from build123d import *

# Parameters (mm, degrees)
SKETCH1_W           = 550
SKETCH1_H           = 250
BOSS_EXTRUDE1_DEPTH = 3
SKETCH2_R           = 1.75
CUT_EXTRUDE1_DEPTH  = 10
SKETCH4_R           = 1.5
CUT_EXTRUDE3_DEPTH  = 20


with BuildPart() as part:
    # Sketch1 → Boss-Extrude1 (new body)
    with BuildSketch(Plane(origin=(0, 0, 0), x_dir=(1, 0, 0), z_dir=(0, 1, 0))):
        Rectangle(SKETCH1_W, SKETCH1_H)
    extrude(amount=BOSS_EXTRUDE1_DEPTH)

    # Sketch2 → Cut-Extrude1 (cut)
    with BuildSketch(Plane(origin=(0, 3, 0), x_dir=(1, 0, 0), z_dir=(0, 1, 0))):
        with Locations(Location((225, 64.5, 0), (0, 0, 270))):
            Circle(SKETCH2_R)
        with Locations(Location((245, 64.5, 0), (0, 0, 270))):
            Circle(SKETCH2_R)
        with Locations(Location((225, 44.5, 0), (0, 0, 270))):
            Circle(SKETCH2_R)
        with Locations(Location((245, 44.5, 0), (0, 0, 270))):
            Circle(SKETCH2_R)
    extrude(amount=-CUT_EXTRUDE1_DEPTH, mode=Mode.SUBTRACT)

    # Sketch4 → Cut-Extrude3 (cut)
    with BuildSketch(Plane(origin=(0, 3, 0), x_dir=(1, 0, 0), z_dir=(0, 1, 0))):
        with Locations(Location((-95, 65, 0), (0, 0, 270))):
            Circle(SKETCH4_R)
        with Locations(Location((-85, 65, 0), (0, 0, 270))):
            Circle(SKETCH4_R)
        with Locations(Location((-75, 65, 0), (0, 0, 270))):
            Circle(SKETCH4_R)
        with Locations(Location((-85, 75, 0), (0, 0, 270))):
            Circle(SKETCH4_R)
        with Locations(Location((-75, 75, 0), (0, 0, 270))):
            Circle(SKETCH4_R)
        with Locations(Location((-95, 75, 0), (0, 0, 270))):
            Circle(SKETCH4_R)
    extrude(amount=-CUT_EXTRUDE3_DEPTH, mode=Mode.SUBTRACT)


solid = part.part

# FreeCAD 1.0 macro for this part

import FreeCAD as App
import Part
import Sketcher

V = App.Vector

doc = App.newDocument("Part")
body = doc.addObject("PartDesign::Body", "Body")

# Sketch on XZ plane
sketch1 = doc.addObject("Sketcher::SketchObject", "Sketch")
body.addObject(sketch1)
sketch1.AttachmentSupport = (doc.XZ_Plane, [""])
sketch1.MapMode = "FlatFace"
sketch1.addGeometry(Part.LineSegment(V(-275, -125, 0), V(-275, 125, 0)), False)
sketch1.addGeometry(Part.LineSegment(V(-275, 125, 0), V(275, 125, 0)), False)
sketch1.addGeometry(Part.LineSegment(V(275, 125, 0), V(275, -125, 0)), False)
sketch1.addGeometry(Part.LineSegment(V(275, -125, 0), V(-275, -125, 0)), False)
sketch1.addConstraint(Sketcher.Constraint("Coincident", 0, 2, 1, 1))
sketch1.addConstraint(Sketcher.Constraint("Coincident", 1, 2, 2, 1))
sketch1.addConstraint(Sketcher.Constraint("Coincident", 2, 2, 3, 1))
sketch1.addConstraint(Sketcher.Constraint("Coincident", 3, 2, 0, 1))
sketch1.addConstraint(Sketcher.Constraint("Vertical", 0))
sketch1.addConstraint(Sketcher.Constraint("Horizontal", 1))
sketch1.addConstraint(Sketcher.Constraint("Vertical", 2))
sketch1.addConstraint(Sketcher.Constraint("Horizontal", 3))
sketch1.addConstraint(Sketcher.Constraint("Symmetric", 0, 2, 2, 2, -1, 1))
sketch1.addConstraint(Sketcher.Constraint("DistanceX", 1, 1, 1, 2, 550.0))
sketch1.addConstraint(Sketcher.Constraint("DistanceY", 0, 1, 0, 2, 250.0))
pad1 = doc.addObject("PartDesign::Pad", "Pad")
body.addObject(pad1)
pad1.Profile = sketch1
pad1.Length = 3
pad1.Reversed = True

# Sketch on XZ plane
sketch2 = doc.addObject("Sketcher::SketchObject", "Sketch001")
body.addObject(sketch2)
sketch2.AttachmentSupport = (doc.XZ_Plane, [""])
sketch2.MapMode = "FlatFace"
sketch2.AttachmentOffset = App.Placement(V(0, 0, -3), App.Rotation())
sketch2.addGeometry(Part.Circle(V(225, -64.5, 0), V(0, 0, 1), 1.8), False)
sketch2.addGeometry(Part.Circle(V(245, -64.5, 0), V(0, 0, 1), 1.8), False)
sketch2.addGeometry(Part.Circle(V(225, -44.5, 0), V(0, 0, 1), 1.8), False)
sketch2.addGeometry(Part.Circle(V(245, -44.5, 0), V(0, 0, 1), 1.8), False)
sketch2.addConstraint(Sketcher.Constraint("Equal", 0, 1))
sketch2.addConstraint(Sketcher.Constraint("Equal", 1, 2))
sketch2.addConstraint(Sketcher.Constraint("Equal", 2, 3))
sketch2.addConstraint(Sketcher.Constraint("Horizontal", 0, 3, 1, 3))
sketch2.addConstraint(Sketcher.Constraint("Horizontal", 2, 3, 3, 3))
sketch2.addConstraint(Sketcher.Constraint("Vertical", 0, 3, 2, 3))
sketch2.addConstraint(Sketcher.Constraint("Vertical", 1, 3, 3, 3))
sketch2.addConstraint(Sketcher.Constraint("Diameter", 0, 3.5))
sketch2.addConstraint(Sketcher.Constraint("DistanceX", -1, 1, 0, 3, 225.0))
sketch2.addConstraint(Sketcher.Constraint("DistanceX", -1, 1, 1, 3, 245.0))
sketch2.addConstraint(Sketcher.Constraint("DistanceY", 0, 3, 2, 3, 20.0))
sketch2.addConstraint(Sketcher.Constraint("DistanceY", 0, 3, -1, 1, 64.5))
pocket1 = doc.addObject("PartDesign::Pocket", "Pocket")
body.addObject(pocket1)
pocket1.Profile = sketch2
pocket1.Length = 10
pocket1.Reversed = True

# Sketch on XZ plane
sketch3 = doc.addObject("Sketcher::SketchObject", "Sketch002")
body.addObject(sketch3)
sketch3.AttachmentSupport = (doc.XZ_Plane, [""])
sketch3.MapMode = "FlatFace"
sketch3.AttachmentOffset = App.Placement(V(0, 0, -3), App.Rotation())
sketch3.addGeometry(Part.Circle(V(-95, -65, 0), V(0, 0, 1), 1.5), False)
sketch3.addGeometry(Part.Circle(V(-85, -65, 0), V(0, 0, 1), 1.5), False)
sketch3.addGeometry(Part.Circle(V(-75, -65, 0), V(0, 0, 1), 1.5), False)
sketch3.addGeometry(Part.Circle(V(-85, -75, 0), V(0, 0, 1), 1.5), False)
sketch3.addGeometry(Part.Circle(V(-75, -75, 0), V(0, 0, 1), 1.5), False)
sketch3.addGeometry(Part.Circle(V(-95, -75, 0), V(0, 0, 1), 1.5), False)
sketch3.addConstraint(Sketcher.Constraint("Equal", 0, 1))
sketch3.addConstraint(Sketcher.Constraint("Equal", 1, 2))
sketch3.addConstraint(Sketcher.Constraint("Equal", 2, 3))
sketch3.addConstraint(Sketcher.Constraint("Equal", 3, 4))
sketch3.addConstraint(Sketcher.Constraint("Equal", 4, 5))
sketch3.addConstraint(Sketcher.Constraint("Horizontal", 0, 3, 1, 3))
sketch3.addConstraint(Sketcher.Constraint("Horizontal", 1, 3, 2, 3))
sketch3.addConstraint(Sketcher.Constraint("Horizontal", 3, 3, 4, 3))
sketch3.addConstraint(Sketcher.Constraint("Horizontal", 4, 3, 5, 3))
sketch3.addConstraint(Sketcher.Constraint("Vertical", 1, 3, 3, 3))
sketch3.addConstraint(Sketcher.Constraint("Vertical", 2, 3, 4, 3))
sketch3.addConstraint(Sketcher.Constraint("Vertical", 0, 3, 5, 3))
sketch3.addConstraint(Sketcher.Constraint("Diameter", 0, 3.0))
sketch3.addConstraint(Sketcher.Constraint("DistanceX", 0, 3, -1, 1, 95.0))
sketch3.addConstraint(Sketcher.Constraint("DistanceY", 0, 3, -1, 1, 65.0))
sketch3.addConstraint(Sketcher.Constraint("DistanceX", 1, 3, -1, 1, 85.0))
sketch3.addConstraint(Sketcher.Constraint("DistanceX", 2, 3, -1, 1, 75.0))
sketch3.addConstraint(Sketcher.Constraint("DistanceY", 3, 3, -1, 1, 75.0))
pocket2 = doc.addObject("PartDesign::Pocket", "Pocket001")
body.addObject(pocket2)
pocket2.Profile = sketch3
pocket2.Length = 20
pocket2.Reversed = True

doc.recompute()
